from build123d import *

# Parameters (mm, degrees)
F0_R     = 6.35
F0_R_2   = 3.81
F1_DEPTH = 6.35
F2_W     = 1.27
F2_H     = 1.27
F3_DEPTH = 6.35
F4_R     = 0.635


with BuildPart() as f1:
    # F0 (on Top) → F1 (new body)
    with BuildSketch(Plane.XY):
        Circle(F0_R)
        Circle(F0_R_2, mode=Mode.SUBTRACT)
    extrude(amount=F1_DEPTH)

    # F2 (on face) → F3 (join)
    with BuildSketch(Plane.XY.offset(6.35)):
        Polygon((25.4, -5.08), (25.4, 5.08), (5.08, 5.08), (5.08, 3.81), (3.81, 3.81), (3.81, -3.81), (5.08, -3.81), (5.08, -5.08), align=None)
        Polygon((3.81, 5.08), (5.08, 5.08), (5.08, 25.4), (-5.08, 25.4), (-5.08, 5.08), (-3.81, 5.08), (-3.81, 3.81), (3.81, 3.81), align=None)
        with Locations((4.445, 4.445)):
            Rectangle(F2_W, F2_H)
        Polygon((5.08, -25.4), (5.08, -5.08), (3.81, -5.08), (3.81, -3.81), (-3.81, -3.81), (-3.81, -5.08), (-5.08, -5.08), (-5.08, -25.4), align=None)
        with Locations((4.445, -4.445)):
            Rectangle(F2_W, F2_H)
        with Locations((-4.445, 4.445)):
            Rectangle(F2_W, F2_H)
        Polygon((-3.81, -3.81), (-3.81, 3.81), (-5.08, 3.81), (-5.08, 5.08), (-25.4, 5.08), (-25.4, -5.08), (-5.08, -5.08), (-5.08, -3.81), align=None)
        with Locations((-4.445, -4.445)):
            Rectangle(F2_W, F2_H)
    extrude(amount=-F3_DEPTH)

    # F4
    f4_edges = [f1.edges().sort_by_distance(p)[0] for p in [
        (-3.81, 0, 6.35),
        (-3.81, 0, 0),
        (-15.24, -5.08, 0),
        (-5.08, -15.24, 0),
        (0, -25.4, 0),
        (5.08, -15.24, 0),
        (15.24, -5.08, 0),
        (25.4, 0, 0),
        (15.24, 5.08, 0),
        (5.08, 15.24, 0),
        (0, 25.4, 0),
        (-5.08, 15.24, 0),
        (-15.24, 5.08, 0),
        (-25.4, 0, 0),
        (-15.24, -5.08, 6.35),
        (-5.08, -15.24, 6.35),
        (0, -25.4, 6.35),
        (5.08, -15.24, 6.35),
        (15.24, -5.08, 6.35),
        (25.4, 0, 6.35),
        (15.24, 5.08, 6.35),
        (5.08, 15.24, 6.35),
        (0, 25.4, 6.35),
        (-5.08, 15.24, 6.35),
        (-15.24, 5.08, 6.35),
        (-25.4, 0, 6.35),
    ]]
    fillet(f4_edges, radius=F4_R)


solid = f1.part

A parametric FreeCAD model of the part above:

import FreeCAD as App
import Part
import Sketcher
from FreeCAD import Vector
Q = App.Units.Quantity


def edges_at(feature, points):
    """Names of the edges that pass closest to the given points."""
    edges = feature.Shape.Edges
    near = lambda p: min(range(len(edges)), key=lambda i: edges[i].distToShape(Part.Vertex(*p))[0])
    return sorted({f"Edge{near(p) + 1}" for p in points})

doc = App.newDocument("Part")
params = doc.addObject("Spreadsheet::Sheet", "Params")
for row, (alias, value) in enumerate([
    ("sketch1_diameter", "0.5 in"),
    ("sketch1_diameter2", "0.3 in"),
    ("pad1_length", "0.25 in"),
    ("sketch2_width", "0.8 in"),
    ("sketch2_width2", "0.4 in"),
    ("sketch2_width3", "0.3 in"),
    ("pad2_length", "0.25 in"),
    ("fillet_radius", "0.025 in"),
], start=1):
    params.set(f"A{row}", alias)
    params.set(f"B{row}", "=" + value)
    params.setAlias(f"B{row}", alias)

body = doc.addObject("PartDesign::Body", "Body")

# Sketch on XY plane
sketch1 = doc.addObject("Sketcher::SketchObject", "Sketch")
body.addObject(sketch1)
sketch1.AttachmentSupport = (doc.XY_Plane, [""])
sketch1.MapMode = "FlatFace"
sketch1.addGeometry([
    Part.Circle(Vector(0, 0, 0), Vector(0, 0, 1), 6.3),
    Part.Circle(Vector(0, 0, 0), Vector(0, 0, 1), 3.8),
], False)
sketch1.addConstraint([
    Sketcher.Constraint("Coincident", 0, 3, -1, 1),
    Sketcher.Constraint("Coincident", 1, 3, -1, 1),
    Sketcher.Constraint("Diameter", 0, Q("0.5 in")),
    Sketcher.Constraint("Diameter", 1, Q("0.3 in")),
])
sketch1.setExpression("Constraints[2]", "Params.sketch1_diameter")
sketch1.setExpression("Constraints[3]", "Params.sketch1_diameter2")
pad1 = doc.addObject("PartDesign::Pad", "Pad")
body.addObject(pad1)
pad1.Profile = sketch1
pad1.setExpression("Length", "Params.pad1_length")

# Sketch on XY plane
sketch2 = doc.addObject("Sketcher::SketchObject", "Sketch001")
body.addObject(sketch2)
sketch2.AttachmentSupport = (doc.XY_Plane, [""])
sketch2.MapMode = "FlatFace"
sketch2.AttachmentOffset = App.Placement(Vector(0, 0, 0.25 * 25.4), App.Rotation())
sketch2.addGeometry([
    Part.LineSegment(Vector(-25, -5, 0), Vector(-5, -5, 0)),  # 0
    Part.LineSegment(Vector(-5, -5, 0), Vector(-5, -25, 0)),  # 1
    Part.LineSegment(Vector(-5, -25, 0), Vector(5, -25, 0)),  # 2
    Part.LineSegment(Vector(5, -25, 0), Vector(5, -5, 0)),  # 3
    Part.LineSegment(Vector(5, -5, 0), Vector(25, -5, 0)),  # 4
    Part.LineSegment(Vector(25, -5, 0), Vector(25, 5, 0)),  # 5
    Part.LineSegment(Vector(25, 5, 0), Vector(5, 5, 0)),  # 6
    Part.LineSegment(Vector(5, 5, 0), Vector(5, 25, 0)),  # 7
    Part.LineSegment(Vector(5, 25, 0), Vector(-5, 25, 0)),  # 8
    Part.LineSegment(Vector(-5, 25, 0), Vector(-5, 5, 0)),  # 9
    Part.LineSegment(Vector(-5, 5, 0), Vector(-25, 5, 0)),  # 10
    Part.LineSegment(Vector(-25, 5, 0), Vector(-25, -5, 0)),  # 11
    Part.LineSegment(Vector(4, -4, 0), Vector(-4, -4, 0)),  # 12
    Part.LineSegment(Vector(-4, -4, 0), Vector(-4, 4, 0)),  # 13
    Part.LineSegment(Vector(-4, 4, 0), Vector(4, 4, 0)),  # 14
    Part.LineSegment(Vector(4, 4, 0), Vector(4, -4, 0)),  # 15
], False)
sketch2.addConstraint([
    Sketcher.Constraint("Coincident", 0, 2, 1, 1),
    Sketcher.Constraint("Coincident", 1, 2, 2, 1),
    Sketcher.Constraint("Coincident", 2, 2, 3, 1),
    Sketcher.Constraint("Coincident", 3, 2, 4, 1),
    Sketcher.Constraint("Coincident", 4, 2, 5, 1),
    Sketcher.Constraint("Coincident", 5, 2, 6, 1),
    Sketcher.Constraint("Coincident", 6, 2, 7, 1),
    Sketcher.Constraint("Coincident", 7, 2, 8, 1),
    Sketcher.Constraint("Coincident", 8, 2, 9, 1),
    Sketcher.Constraint("Coincident", 9, 2, 10, 1),
    Sketcher.Constraint("Coincident", 10, 2, 11, 1),
    Sketcher.Constraint("Coincident", 11, 2, 0, 1),
    Sketcher.Constraint("Coincident", 12, 2, 13, 1),
    Sketcher.Constraint("Coincident", 13, 2, 14, 1),
    Sketcher.Constraint("Coincident", 14, 2, 15, 1),
    Sketcher.Constraint("Coincident", 15, 2, 12, 1),
    Sketcher.Constraint("Horizontal", 0),
    Sketcher.Constraint("Vertical", 1),
    Sketcher.Constraint("Horizontal", 2),
    Sketcher.Constraint("Vertical", 3),
    Sketcher.Constraint("Horizontal", 4),
    Sketcher.Constraint("Vertical", 5),
    Sketcher.Constraint("Horizontal", 6),
    Sketcher.Constraint("Vertical", 7),
    Sketcher.Constraint("Horizontal", 8),
    Sketcher.Constraint("Vertical", 9),
    Sketcher.Constraint("Horizontal", 10),
    Sketcher.Constraint("Vertical", 11),
    Sketcher.Constraint("Horizontal", 12),
    Sketcher.Constraint("Vertical", 13),
    Sketcher.Constraint("Horizontal", 14),
    Sketcher.Constraint("Vertical", 15),
    Sketcher.Constraint("Symmetric", 0, 2, 6, 2, -1, 1),
    Sketcher.Constraint("Symmetric", 2, 2, 8, 2, -1, 1),
    Sketcher.Constraint("Symmetric", 4, 2, 10, 2, -1, 1),
    Sketcher.Constraint("Symmetric", 12, 2, 14, 2, -1, 1),
    Sketcher.Constraint("Symmetric", 0, 2, 3, 2, -2),
    Sketcher.Constraint("Equal", 10, 1),
    Sketcher.Constraint("Equal", 8, 5),
    Sketcher.Constraint("Equal", 14, 13),
    Sketcher.Constraint("DistanceX", 0, 1, 0, 2, Q("0.8 in")),
    Sketcher.Constraint("DistanceX", 2, 1, 2, 2, Q("0.4 in")),
    Sketcher.Constraint("DistanceX", 12, 2, 12, 1, Q("0.3 in")),
])
sketch2.setExpression("Constraints[40]", "Params.sketch2_width")
sketch2.setExpression("Constraints[41]", "Params.sketch2_width2")
sketch2.setExpression("Constraints[42]", "Params.sketch2_width3")
pad2 = doc.addObject("PartDesign::Pad", "Pad001")
body.addObject(pad2)
pad2.Profile = sketch2
pad2.setExpression("Length", "Params.pad2_length")
pad2.Reversed = True
doc.recompute()

fillet = doc.addObject("PartDesign::Fillet", "Fillet")
body.addObject(fillet)
fillet.Base = (pad2, edges_at(pad2, [
    (-3.81, 0, 6.35),
    (-3.81, 0, 0),
    (-15.24, -5.08, 0),
    (-5.08, -15.24, 0),
    (0, -25.4, 0),
    (5.08, -15.24, 0),
    (15.24, -5.08, 0),
    (25.4, 0, 0),
    (15.24, 5.08, 0),
    (5.08, 15.24, 0),
    (0, 25.4, 0),
    (-5.08, 15.24, 0),
    (-15.24, 5.08, 0),
    (-25.4, 0, 0),
    (-15.24, -5.08, 6.35),
    (-5.08, -15.24, 6.35),
    (0, -25.4, 6.35),
    (5.08, -15.24, 6.35),
    (15.24, -5.08, 6.35),
    (25.4, 0, 6.35),
    (15.24, 5.08, 6.35),
    (5.08, 15.24, 6.35),
    (0, 25.4, 6.35),
    (-5.08, 15.24, 6.35),
    (-15.24, 5.08, 6.35),
    (-25.4, 0, 6.35),
]))
fillet.setExpression("Radius", "Params.fillet_radius")

doc.recompute()
